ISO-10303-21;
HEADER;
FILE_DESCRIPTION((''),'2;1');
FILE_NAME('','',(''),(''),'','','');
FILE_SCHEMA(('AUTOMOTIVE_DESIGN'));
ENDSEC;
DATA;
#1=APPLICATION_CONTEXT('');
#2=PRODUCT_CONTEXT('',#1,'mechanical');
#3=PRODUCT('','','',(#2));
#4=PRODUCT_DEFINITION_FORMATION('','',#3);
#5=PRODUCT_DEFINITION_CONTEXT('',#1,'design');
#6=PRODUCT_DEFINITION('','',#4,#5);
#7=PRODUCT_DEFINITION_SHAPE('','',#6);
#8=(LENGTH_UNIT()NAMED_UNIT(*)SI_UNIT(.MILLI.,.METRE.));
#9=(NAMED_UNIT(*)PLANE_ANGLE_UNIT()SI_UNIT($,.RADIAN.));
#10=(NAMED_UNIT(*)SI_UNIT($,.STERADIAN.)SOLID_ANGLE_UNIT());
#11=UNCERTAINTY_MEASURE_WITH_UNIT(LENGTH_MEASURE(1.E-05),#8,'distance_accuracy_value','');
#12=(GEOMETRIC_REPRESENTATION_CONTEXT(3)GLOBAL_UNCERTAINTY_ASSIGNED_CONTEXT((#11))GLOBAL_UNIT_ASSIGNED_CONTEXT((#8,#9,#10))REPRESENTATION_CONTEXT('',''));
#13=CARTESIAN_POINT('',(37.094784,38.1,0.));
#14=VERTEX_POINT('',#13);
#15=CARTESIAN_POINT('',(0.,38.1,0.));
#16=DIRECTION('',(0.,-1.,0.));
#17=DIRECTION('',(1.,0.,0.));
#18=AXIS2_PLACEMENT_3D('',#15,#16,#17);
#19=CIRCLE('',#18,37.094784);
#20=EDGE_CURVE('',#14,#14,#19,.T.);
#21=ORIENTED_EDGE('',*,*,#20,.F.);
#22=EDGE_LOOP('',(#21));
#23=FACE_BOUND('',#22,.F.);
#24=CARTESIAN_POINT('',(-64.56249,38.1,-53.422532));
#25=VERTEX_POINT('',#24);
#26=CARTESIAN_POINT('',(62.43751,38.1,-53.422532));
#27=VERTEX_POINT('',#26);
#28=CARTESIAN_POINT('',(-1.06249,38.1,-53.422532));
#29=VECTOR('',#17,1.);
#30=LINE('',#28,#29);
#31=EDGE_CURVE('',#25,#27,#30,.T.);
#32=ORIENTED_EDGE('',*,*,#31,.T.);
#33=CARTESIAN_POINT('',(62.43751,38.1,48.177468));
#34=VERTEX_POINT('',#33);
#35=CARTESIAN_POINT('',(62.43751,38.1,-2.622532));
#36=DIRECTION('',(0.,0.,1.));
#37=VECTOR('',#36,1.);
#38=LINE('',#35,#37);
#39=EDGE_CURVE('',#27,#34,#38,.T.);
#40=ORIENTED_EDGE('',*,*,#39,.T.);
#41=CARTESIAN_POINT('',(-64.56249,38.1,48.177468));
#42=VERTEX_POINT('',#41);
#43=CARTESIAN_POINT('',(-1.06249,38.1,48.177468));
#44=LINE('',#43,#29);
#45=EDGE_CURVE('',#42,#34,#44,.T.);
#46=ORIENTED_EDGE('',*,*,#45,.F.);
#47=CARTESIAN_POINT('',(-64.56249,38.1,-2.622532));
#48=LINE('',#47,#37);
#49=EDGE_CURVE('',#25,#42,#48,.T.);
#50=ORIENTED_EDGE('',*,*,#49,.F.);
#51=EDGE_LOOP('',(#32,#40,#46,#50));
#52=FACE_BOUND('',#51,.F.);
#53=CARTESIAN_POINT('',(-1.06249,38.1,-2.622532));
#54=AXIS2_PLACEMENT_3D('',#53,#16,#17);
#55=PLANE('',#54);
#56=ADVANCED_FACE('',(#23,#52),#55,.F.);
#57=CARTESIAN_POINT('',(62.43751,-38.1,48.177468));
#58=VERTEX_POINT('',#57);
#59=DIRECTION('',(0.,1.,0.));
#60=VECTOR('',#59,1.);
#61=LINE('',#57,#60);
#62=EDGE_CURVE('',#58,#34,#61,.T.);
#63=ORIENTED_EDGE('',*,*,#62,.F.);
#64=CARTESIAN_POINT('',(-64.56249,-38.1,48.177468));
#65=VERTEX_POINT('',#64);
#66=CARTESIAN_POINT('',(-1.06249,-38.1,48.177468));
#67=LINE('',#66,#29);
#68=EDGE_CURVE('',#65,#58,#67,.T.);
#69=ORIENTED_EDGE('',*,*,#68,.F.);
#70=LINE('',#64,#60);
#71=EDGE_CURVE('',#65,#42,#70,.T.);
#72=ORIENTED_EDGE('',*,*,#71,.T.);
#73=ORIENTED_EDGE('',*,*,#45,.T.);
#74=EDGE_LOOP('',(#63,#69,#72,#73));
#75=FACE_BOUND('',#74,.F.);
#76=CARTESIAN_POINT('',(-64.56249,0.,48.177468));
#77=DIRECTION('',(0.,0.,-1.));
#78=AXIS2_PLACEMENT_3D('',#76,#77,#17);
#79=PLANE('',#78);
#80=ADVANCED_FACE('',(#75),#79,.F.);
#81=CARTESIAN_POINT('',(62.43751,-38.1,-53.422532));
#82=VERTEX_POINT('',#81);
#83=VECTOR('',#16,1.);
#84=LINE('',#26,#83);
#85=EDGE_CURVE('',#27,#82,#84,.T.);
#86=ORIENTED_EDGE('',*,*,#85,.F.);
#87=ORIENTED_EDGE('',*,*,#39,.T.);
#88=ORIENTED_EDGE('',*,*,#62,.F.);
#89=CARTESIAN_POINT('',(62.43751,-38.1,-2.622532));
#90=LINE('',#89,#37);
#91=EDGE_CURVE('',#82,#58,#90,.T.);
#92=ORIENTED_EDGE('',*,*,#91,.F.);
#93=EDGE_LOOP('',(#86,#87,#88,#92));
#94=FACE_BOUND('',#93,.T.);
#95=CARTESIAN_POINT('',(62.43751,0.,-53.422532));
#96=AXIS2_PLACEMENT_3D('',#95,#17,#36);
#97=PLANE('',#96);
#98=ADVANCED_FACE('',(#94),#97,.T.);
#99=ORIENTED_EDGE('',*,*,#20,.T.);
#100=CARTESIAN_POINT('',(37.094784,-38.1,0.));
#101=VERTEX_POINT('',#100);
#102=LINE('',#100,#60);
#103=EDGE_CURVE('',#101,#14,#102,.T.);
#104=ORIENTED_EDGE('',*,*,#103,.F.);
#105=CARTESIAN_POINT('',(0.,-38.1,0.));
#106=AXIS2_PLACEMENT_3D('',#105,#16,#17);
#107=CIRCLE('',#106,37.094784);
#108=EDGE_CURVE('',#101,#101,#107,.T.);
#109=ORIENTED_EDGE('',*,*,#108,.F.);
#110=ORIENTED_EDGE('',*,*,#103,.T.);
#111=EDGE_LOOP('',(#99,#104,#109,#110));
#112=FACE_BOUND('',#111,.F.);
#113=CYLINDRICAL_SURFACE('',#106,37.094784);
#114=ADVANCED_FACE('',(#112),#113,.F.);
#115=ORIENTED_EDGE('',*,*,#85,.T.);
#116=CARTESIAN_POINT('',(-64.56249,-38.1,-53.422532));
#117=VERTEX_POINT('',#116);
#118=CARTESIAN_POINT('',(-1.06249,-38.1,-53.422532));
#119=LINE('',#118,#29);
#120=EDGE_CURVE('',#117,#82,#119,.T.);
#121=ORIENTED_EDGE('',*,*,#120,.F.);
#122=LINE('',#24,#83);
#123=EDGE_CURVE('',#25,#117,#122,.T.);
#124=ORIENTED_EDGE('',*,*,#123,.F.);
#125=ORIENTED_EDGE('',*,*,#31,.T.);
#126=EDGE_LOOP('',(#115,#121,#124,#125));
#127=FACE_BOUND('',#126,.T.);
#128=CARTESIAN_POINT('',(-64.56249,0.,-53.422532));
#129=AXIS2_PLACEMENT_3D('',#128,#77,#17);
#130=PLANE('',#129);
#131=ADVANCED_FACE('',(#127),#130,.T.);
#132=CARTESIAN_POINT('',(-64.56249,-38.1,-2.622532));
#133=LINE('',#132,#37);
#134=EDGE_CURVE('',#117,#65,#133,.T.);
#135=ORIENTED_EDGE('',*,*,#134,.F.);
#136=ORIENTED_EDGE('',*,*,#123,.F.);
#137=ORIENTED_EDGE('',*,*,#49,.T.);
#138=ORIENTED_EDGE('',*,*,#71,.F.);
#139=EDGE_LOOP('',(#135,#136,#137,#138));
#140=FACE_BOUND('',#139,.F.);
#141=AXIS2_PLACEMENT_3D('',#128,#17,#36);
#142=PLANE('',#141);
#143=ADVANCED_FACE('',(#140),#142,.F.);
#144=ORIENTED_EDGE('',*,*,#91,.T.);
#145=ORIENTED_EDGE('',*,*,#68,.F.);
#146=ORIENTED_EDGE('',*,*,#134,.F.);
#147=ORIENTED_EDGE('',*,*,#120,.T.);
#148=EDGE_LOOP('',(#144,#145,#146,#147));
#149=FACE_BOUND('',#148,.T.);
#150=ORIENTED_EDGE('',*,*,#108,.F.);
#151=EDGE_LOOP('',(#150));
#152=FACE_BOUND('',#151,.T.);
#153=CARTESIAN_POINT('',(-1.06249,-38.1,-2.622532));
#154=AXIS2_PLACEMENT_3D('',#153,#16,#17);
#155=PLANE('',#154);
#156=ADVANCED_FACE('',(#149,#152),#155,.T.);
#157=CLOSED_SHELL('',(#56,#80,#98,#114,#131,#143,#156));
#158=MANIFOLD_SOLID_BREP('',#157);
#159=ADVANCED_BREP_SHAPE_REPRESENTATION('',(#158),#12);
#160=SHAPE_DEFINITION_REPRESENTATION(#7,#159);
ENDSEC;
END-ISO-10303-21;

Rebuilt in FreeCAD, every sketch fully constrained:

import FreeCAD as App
import Part
import Sketcher
Q = App.Units.Quantity

doc = App.newDocument("Part")
params = doc.addObject("Spreadsheet::Sheet", "Params")
for row, (alias, value) in enumerate([
    ("sketch1_width", "5 in"),
    ("sketch1_height", "4 in"),
    ("pad1_length", "3 in"),
], start=1):
    params.set(f"A{row}", alias)
    params.set(f"B{row}", "=" + value)
    params.setAlias(f"B{row}", alias)

body = doc.addObject("PartDesign::Body", "Body")

# Sketch on XZ plane
sketch1 = body.newObject("Sketcher::SketchObject", "Sketch")
sketch1.AttachmentSupport = (doc.getObject("XZ_Plane"), [""])
sketch1.MapMode = "FlatFace"
sketch1.addGeometry(Part.LineSegment(App.Vector(-65, 48, 0), App.Vector(-65, -53, 0)), False)
sketch1.addGeometry(Part.LineSegment(App.Vector(-65, -53, 0), App.Vector(62, -53, 0)), False)
sketch1.addGeometry(Part.LineSegment(App.Vector(62, -53, 0), App.Vector(62, 48, 0)), False)
sketch1.addGeometry(Part.LineSegment(App.Vector(62, 48, 0), App.Vector(-65, 48, 0)), False)
sketch1.addConstraint(Sketcher.Constraint("Coincident", 0, 2, 1, 1))
sketch1.addConstraint(Sketcher.Constraint("Coincident", 1, 2, 2, 1))
sketch1.addConstraint(Sketcher.Constraint("Coincident", 2, 2, 3, 1))
sketch1.addConstraint(Sketcher.Constraint("Coincident", 3, 2, 0, 1))
sketch1.addConstraint(Sketcher.Constraint("Vertical", 0))
sketch1.addConstraint(Sketcher.Constraint("Horizontal", 1))
sketch1.addConstraint(Sketcher.Constraint("Vertical", 2))
sketch1.addConstraint(Sketcher.Constraint("Horizontal", 3))
sketch1.addConstraint(Sketcher.Constraint("DistanceX", 1, 1, 1, 2, Q("5 in")))
sketch1.addConstraint(Sketcher.Constraint("DistanceY", 0, 2, 0, 1, Q("4 in")))
sketch1.addConstraint(Sketcher.Constraint("DistanceX", 0, 2, -1, 1, 64.56249))
sketch1.addConstraint(Sketcher.Constraint("DistanceY", 0, 2, -1, 1, 53.422532))
sketch1.setExpression("Constraints[8]", "Params.sketch1_width")
sketch1.setExpression("Constraints[9]", "Params.sketch1_height")
pad1 = body.newObject("PartDesign::Pad", "Pad")
pad1.Profile = sketch1
pad1.setExpression("Length", "Params.pad1_length")
pad1.Midplane = True

# Sketch on XZ plane
sketch2 = body.newObject("Sketcher::SketchObject", "Sketch001")
sketch2.AttachmentSupport = (doc.getObject("XZ_Plane"), [""])
sketch2.MapMode = "FlatFace"
sketch2.AttachmentOffset = App.Placement(App.Vector(0, 0, 1.5 * 25.4), App.Rotation())
sketch2.addGeometry(Part.Circle(App.Vector(0, 0, 0), App.Vector(0, 0, 1), 37), False)
sketch2.addConstraint(Sketcher.Constraint("Coincident", 0, 3, -1, 1))
sketch2.addConstraint(Sketcher.Constraint("Diameter", 0, 74.189568))
pocket1 = body.newObject("PartDesign::Pocket", "Pocket")
pocket1.Profile = sketch2
pocket1.Type = "ThroughAll"

doc.recompute()
